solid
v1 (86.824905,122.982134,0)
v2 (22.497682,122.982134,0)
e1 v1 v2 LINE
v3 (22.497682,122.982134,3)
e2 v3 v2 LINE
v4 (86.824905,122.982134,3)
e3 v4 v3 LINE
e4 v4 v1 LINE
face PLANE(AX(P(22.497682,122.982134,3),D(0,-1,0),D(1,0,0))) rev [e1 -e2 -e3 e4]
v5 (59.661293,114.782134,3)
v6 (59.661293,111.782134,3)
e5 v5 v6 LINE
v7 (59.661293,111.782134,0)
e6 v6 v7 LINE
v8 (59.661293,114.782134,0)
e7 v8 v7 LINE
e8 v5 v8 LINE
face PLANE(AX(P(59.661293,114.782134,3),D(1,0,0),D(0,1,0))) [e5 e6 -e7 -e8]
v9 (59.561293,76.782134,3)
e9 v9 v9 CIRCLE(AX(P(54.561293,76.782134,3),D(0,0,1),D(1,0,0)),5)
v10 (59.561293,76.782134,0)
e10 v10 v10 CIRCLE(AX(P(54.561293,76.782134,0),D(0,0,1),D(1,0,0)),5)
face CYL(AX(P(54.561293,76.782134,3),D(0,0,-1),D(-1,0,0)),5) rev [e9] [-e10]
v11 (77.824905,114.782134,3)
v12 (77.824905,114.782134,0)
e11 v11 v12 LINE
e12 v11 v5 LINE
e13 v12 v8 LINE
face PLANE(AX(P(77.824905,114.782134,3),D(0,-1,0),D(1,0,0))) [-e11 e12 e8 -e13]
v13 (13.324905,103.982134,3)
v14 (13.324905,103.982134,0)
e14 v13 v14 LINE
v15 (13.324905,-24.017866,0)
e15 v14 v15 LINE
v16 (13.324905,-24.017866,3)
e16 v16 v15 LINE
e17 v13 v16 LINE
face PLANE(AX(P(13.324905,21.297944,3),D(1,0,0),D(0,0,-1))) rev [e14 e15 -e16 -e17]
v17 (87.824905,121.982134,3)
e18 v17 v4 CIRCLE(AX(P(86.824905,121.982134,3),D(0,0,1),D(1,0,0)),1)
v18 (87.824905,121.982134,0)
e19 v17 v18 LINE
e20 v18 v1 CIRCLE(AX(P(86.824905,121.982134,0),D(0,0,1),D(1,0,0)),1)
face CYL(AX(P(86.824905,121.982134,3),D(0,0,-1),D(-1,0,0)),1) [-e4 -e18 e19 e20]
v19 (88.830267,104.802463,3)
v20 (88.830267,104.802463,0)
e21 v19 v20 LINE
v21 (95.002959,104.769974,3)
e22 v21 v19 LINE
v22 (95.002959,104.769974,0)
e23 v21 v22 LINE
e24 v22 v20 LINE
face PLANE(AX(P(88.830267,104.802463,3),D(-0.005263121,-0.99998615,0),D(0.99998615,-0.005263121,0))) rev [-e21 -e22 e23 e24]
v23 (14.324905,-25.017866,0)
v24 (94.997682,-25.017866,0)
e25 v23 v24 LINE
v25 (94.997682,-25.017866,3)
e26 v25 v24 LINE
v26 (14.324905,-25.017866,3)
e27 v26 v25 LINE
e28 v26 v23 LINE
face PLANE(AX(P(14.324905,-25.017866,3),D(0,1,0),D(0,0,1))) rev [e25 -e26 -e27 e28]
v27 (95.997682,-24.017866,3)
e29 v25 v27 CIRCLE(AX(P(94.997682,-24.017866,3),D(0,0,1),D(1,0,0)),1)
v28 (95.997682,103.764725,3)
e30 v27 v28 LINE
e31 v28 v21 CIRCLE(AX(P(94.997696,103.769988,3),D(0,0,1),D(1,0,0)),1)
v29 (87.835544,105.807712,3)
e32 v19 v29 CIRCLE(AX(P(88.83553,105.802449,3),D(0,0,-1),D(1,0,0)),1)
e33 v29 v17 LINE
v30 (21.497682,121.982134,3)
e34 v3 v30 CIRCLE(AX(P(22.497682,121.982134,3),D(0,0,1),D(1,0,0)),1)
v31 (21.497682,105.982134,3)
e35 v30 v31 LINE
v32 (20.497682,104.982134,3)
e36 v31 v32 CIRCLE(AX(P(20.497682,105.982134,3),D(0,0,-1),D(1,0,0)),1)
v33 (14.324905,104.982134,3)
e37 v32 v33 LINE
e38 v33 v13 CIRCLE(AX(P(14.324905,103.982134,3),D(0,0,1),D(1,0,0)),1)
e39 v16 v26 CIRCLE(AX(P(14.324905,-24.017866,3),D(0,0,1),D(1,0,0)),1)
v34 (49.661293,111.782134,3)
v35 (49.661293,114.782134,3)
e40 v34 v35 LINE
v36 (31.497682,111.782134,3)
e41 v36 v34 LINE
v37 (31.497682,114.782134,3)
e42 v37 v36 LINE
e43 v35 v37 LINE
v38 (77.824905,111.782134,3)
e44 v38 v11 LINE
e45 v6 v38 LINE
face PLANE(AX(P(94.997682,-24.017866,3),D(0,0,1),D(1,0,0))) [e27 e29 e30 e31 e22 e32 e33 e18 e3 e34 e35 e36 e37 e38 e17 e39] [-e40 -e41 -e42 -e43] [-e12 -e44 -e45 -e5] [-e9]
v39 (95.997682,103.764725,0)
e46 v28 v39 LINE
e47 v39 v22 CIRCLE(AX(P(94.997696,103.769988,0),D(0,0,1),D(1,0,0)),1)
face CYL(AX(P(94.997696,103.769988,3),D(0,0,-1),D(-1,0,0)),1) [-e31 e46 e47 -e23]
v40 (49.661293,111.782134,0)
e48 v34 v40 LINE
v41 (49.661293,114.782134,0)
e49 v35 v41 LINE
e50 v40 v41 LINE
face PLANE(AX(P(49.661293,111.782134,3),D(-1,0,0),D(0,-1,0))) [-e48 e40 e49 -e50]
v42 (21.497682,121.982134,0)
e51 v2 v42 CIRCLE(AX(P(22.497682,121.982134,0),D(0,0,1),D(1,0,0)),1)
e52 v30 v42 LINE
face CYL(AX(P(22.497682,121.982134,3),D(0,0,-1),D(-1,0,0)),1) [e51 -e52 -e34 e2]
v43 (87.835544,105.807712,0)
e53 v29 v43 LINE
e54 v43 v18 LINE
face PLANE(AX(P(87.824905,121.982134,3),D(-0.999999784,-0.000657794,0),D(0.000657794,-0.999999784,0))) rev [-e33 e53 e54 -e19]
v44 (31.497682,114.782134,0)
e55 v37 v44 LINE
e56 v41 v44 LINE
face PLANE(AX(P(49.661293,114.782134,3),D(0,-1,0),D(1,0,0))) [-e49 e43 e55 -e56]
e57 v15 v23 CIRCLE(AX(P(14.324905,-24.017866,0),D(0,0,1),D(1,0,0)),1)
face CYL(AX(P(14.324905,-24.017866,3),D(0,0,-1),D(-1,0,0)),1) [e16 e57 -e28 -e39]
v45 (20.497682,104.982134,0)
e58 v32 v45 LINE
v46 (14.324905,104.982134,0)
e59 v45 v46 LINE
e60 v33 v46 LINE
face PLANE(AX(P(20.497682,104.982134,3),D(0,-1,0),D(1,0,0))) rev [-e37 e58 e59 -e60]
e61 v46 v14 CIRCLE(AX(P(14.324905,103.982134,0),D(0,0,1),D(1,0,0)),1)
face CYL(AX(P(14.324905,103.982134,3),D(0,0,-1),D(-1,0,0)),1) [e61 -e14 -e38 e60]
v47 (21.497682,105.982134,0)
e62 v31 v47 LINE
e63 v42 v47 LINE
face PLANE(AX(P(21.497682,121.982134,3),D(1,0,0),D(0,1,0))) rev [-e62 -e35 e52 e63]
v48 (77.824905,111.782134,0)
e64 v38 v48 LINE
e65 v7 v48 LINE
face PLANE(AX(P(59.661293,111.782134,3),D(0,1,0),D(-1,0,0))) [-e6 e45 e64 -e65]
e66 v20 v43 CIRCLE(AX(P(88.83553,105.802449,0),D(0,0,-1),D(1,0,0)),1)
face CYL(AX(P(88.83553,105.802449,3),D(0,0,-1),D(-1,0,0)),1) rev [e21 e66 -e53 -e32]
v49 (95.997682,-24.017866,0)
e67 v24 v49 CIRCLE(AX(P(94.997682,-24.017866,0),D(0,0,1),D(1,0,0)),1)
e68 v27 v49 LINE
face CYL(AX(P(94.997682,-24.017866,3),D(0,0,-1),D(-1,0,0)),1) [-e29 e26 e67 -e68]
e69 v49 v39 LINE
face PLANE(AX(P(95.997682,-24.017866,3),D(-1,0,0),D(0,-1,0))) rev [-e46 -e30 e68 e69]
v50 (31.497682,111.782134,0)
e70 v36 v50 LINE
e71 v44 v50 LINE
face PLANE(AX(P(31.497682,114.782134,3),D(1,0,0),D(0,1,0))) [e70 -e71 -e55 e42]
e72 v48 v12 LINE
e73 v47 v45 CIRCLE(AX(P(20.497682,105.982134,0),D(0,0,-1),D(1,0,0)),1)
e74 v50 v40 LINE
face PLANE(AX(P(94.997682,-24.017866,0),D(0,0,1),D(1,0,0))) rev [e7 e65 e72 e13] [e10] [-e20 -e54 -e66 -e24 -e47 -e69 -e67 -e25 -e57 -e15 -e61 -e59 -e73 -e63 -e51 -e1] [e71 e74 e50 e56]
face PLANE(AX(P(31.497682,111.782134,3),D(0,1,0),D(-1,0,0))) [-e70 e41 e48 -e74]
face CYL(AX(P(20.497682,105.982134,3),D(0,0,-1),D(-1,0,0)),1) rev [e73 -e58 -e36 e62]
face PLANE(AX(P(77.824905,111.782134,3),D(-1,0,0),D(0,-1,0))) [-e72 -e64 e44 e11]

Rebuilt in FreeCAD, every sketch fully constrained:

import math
import FreeCAD as App
import Part
import Sketcher


def add_polygon(sketch, points):
    """Adds a closed chain of lines whose ends are joined by coincident constraints."""
    first, n = sketch.GeometryCount, len(points)
    for a, b in zip(points, points[1:] + points[:1]):
        sketch.addGeometry(Part.LineSegment(App.Vector(*a, 0), App.Vector(*b, 0)), False)
    for i in range(n):
        sketch.addConstraint(Sketcher.Constraint("Coincident", first + i, 2, first + (i + 1) % n, 1))

doc = App.newDocument("Part")
params = doc.addObject("Spreadsheet::Sheet", "Params")
for row, (alias, value) in enumerate([
    ("sketch1_diameter", "10 mm"),
    ("sketch1_radius", "1 mm"),
    ("sketch1_height", "16 mm"),
    ("sketch1_height2", "128 mm"),
    ("sketch1_height3", "3 mm"),
    ("pad1_length", "3 mm"),
], start=1):
    params.set(f"A{row}", alias)
    params.set(f"B{row}", "=" + value)
    params.setAlias(f"B{row}", alias)

body = doc.addObject("PartDesign::Body", "Body")

sketch1 = doc.addObject("Sketcher::SketchObject", "Sketch")
body.addObject(sketch1)
sketch1.AttachmentSupport = (doc.XY_Plane, [""])
sketch1.MapMode = "FlatFace"
sketch1.addGeometry(Part.LineSegment(App.Vector(96, -24, 0), App.Vector(96, 103.8, 0)), False)
sketch1.addGeometry(Part.ArcOfCircle(Part.Circle(App.Vector(95, 103.8, 0), App.Vector(0, 0, 1), 1), math.radians(0), math.radians(90)), False)
sketch1.addGeometry(Part.LineSegment(App.Vector(95, 104.8, 0), App.Vector(88.8, 104.8, 0)), False)
sketch1.addGeometry(Part.ArcOfCircle(Part.Circle(App.Vector(88.8, 105.8, 0), App.Vector(0, 0, 1), 1), math.radians(180), math.radians(270)), False)
sketch1.addGeometry(Part.LineSegment(App.Vector(87.8, 105.8, 0), App.Vector(87.8, 122, 0)), False)
sketch1.addGeometry(Part.ArcOfCircle(Part.Circle(App.Vector(86.8, 122, 0), App.Vector(0, 0, 1), 1), math.radians(0), math.radians(90)), False)
sketch1.addGeometry(Part.LineSegment(App.Vector(86.8, 123, 0), App.Vector(22.5, 123, 0)), False)
sketch1.addGeometry(Part.ArcOfCircle(Part.Circle(App.Vector(22.5, 122, 0), App.Vector(0, 0, 1), 1), math.radians(90), math.radians(180)), False)
sketch1.addGeometry(Part.LineSegment(App.Vector(21.5, 122, 0), App.Vector(21.5, 106, 0)), False)
sketch1.addGeometry(Part.ArcOfCircle(Part.Circle(App.Vector(20.5, 106, 0), App.Vector(0, 0, 1), 1), math.radians(-90), math.radians(0)), False)
sketch1.addGeometry(Part.LineSegment(App.Vector(20.5, 105, 0), App.Vector(14.3, 105, 0)), False)
sketch1.addGeometry(Part.ArcOfCircle(Part.Circle(App.Vector(14.3, 104, 0), App.Vector(0, 0, 1), 1), math.radians(90), math.radians(180)), False)
sketch1.addGeometry(Part.LineSegment(App.Vector(13.3, 104, 0), App.Vector(13.3, -24, 0)), False)
sketch1.addGeometry(Part.ArcOfCircle(Part.Circle(App.Vector(14.3, -24, 0), App.Vector(0, 0, 1), 1), math.radians(-180), math.radians(-90)), False)
sketch1.addGeometry(Part.LineSegment(App.Vector(14.3, -25, 0), App.Vector(95, -25, 0)), False)
sketch1.addGeometry(Part.ArcOfCircle(Part.Circle(App.Vector(95, -24, 0), App.Vector(0, 0, 1), 1), math.radians(-90), math.radians(0)), False)
sketch1.addGeometry(Part.Circle(App.Vector(54.6, 76.8, 0), App.Vector(0, 0, 1), 5), False)
add_polygon(sketch1, [(49.7, 111.8), (31.5, 111.8), (31.5, 114.8), (49.7, 114.8)])
add_polygon(sketch1, [(77.8, 111.8), (59.7, 111.8), (59.7, 114.8), (77.8, 114.8)])
sketch1.addConstraint([
    Sketcher.Constraint("Coincident", 0, 2, 1, 1),
    Sketcher.Constraint("Tangent", 1, 2, 2, 1),
    Sketcher.Constraint("Tangent", 2, 2, 3, 2),
    Sketcher.Constraint("Coincident", 3, 1, 4, 1),
    Sketcher.Constraint("Coincident", 4, 2, 5, 1),
    Sketcher.Constraint("Tangent", 5, 2, 6, 1),
    Sketcher.Constraint("Tangent", 6, 2, 7, 1),
    Sketcher.Constraint("Tangent", 7, 2, 8, 1),
    Sketcher.Constraint("Tangent", 8, 2, 9, 2),
    Sketcher.Constraint("Tangent", 9, 1, 10, 1),
    Sketcher.Constraint("Tangent", 10, 2, 11, 1),
    Sketcher.Constraint("Tangent", 11, 2, 12, 1),
    Sketcher.Constraint("Tangent", 12, 2, 13, 1),
    Sketcher.Constraint("Tangent", 13, 2, 14, 1),
    Sketcher.Constraint("Tangent", 14, 2, 15, 1),
    Sketcher.Constraint("Tangent", 15, 2, 0, 1),
    Sketcher.Constraint("Vertical", 0),
    Sketcher.Constraint("Horizontal", 6),
    Sketcher.Constraint("Vertical", 8),
    Sketcher.Constraint("Horizontal", 10),
    Sketcher.Constraint("Vertical", 12),
    Sketcher.Constraint("Horizontal", 14),
    Sketcher.Constraint("Horizontal", 17),
    Sketcher.Constraint("Vertical", 18),
    Sketcher.Constraint("Horizontal", 19),
    Sketcher.Constraint("Vertical", 20),
    Sketcher.Constraint("Horizontal", 21),
    Sketcher.Constraint("Vertical", 22),
    Sketcher.Constraint("Horizontal", 23),
    Sketcher.Constraint("Vertical", 24),
    Sketcher.Constraint("Equal", 1, 3),
    Sketcher.Constraint("Equal", 3, 5),
    Sketcher.Constraint("Equal", 5, 7),
    Sketcher.Constraint("Equal", 7, 9),
    Sketcher.Constraint("Equal", 9, 11),
    Sketcher.Constraint("Equal", 11, 13),
    Sketcher.Constraint("Equal", 13, 15),
    Sketcher.Constraint("Horizontal", 7, 3, 4, 2),
    Sketcher.Constraint("Horizontal", 20, 2, 21, 2),
    Sketcher.Constraint("Horizontal", 19, 2, 22, 2),
    Sketcher.Constraint("Equal", 19, 21),
    Sketcher.Constraint("Diameter", 16, 10.0),
    Sketcher.Constraint("Radius", 1, 1.0),
    Sketcher.Constraint("DistanceY", 8, 2, 8, 1, 16.0),
    Sketcher.Constraint("DistanceY", 12, 2, 12, 1, 128.0),
    Sketcher.Constraint("DistanceY", 18, 1, 18, 2, 3.0),
    Sketcher.Constraint("DistanceX", 8, 2, 17, 2, 10.0),
    Sketcher.Constraint("DistanceX", 20, 2, 21, 2, 10.0),
    Sketcher.Constraint("DistanceX", 23, 2, 5, 3, 9.0),
    Sketcher.Constraint("DistanceX", 11, 3, 5, 3, 72.5),
    Sketcher.Constraint("DistanceX", 9, 3, 15, 3, 74.5),
    Sketcher.Constraint("DistanceY", 16, 3, 9, 3, 29.2),
    Sketcher.Constraint("DistanceY", 8, 2, 17, 2, 5.8),
    Sketcher.Constraint("DistanceX", 17, 2, 17, 1, 18.163611),
    Sketcher.Constraint("DistanceY", 0, 1, 0, 2, 127.782591),
    Sketcher.Constraint("DistanceY", -1, 1, 1, 3, 103.769988),
    Sketcher.Constraint("DistanceX", -1, 1, 3, 3, 88.83553),
    Sketcher.Constraint("DistanceY", -1, 1, 3, 3, 105.802449),
    Sketcher.Constraint("DistanceX", -1, 1, 7, 3, 22.497682),
    Sketcher.Constraint("DistanceY", -1, 1, 3, 1, 105.807712),
    Sketcher.Constraint("DistanceX", 9, 3, 16, 3, 34.063611),
    Sketcher.Constraint("DistanceY", 0, 2, 1, 2, 1.005249),
])
sketch1.setExpression("Constraints[49]", "Params.sketch1_diameter")
sketch1.setExpression("Constraints[50]", "Params.sketch1_radius")
sketch1.setExpression("Constraints[51]", "Params.sketch1_height")
sketch1.setExpression("Constraints[52]", "Params.sketch1_height2")
sketch1.setExpression("Constraints[53]", "Params.sketch1_height3")
pad1 = doc.addObject("PartDesign::Pad", "Pad")
body.addObject(pad1)
pad1.Profile = sketch1
pad1.setExpression("Length", "Params.pad1_length")

doc.recompute()
